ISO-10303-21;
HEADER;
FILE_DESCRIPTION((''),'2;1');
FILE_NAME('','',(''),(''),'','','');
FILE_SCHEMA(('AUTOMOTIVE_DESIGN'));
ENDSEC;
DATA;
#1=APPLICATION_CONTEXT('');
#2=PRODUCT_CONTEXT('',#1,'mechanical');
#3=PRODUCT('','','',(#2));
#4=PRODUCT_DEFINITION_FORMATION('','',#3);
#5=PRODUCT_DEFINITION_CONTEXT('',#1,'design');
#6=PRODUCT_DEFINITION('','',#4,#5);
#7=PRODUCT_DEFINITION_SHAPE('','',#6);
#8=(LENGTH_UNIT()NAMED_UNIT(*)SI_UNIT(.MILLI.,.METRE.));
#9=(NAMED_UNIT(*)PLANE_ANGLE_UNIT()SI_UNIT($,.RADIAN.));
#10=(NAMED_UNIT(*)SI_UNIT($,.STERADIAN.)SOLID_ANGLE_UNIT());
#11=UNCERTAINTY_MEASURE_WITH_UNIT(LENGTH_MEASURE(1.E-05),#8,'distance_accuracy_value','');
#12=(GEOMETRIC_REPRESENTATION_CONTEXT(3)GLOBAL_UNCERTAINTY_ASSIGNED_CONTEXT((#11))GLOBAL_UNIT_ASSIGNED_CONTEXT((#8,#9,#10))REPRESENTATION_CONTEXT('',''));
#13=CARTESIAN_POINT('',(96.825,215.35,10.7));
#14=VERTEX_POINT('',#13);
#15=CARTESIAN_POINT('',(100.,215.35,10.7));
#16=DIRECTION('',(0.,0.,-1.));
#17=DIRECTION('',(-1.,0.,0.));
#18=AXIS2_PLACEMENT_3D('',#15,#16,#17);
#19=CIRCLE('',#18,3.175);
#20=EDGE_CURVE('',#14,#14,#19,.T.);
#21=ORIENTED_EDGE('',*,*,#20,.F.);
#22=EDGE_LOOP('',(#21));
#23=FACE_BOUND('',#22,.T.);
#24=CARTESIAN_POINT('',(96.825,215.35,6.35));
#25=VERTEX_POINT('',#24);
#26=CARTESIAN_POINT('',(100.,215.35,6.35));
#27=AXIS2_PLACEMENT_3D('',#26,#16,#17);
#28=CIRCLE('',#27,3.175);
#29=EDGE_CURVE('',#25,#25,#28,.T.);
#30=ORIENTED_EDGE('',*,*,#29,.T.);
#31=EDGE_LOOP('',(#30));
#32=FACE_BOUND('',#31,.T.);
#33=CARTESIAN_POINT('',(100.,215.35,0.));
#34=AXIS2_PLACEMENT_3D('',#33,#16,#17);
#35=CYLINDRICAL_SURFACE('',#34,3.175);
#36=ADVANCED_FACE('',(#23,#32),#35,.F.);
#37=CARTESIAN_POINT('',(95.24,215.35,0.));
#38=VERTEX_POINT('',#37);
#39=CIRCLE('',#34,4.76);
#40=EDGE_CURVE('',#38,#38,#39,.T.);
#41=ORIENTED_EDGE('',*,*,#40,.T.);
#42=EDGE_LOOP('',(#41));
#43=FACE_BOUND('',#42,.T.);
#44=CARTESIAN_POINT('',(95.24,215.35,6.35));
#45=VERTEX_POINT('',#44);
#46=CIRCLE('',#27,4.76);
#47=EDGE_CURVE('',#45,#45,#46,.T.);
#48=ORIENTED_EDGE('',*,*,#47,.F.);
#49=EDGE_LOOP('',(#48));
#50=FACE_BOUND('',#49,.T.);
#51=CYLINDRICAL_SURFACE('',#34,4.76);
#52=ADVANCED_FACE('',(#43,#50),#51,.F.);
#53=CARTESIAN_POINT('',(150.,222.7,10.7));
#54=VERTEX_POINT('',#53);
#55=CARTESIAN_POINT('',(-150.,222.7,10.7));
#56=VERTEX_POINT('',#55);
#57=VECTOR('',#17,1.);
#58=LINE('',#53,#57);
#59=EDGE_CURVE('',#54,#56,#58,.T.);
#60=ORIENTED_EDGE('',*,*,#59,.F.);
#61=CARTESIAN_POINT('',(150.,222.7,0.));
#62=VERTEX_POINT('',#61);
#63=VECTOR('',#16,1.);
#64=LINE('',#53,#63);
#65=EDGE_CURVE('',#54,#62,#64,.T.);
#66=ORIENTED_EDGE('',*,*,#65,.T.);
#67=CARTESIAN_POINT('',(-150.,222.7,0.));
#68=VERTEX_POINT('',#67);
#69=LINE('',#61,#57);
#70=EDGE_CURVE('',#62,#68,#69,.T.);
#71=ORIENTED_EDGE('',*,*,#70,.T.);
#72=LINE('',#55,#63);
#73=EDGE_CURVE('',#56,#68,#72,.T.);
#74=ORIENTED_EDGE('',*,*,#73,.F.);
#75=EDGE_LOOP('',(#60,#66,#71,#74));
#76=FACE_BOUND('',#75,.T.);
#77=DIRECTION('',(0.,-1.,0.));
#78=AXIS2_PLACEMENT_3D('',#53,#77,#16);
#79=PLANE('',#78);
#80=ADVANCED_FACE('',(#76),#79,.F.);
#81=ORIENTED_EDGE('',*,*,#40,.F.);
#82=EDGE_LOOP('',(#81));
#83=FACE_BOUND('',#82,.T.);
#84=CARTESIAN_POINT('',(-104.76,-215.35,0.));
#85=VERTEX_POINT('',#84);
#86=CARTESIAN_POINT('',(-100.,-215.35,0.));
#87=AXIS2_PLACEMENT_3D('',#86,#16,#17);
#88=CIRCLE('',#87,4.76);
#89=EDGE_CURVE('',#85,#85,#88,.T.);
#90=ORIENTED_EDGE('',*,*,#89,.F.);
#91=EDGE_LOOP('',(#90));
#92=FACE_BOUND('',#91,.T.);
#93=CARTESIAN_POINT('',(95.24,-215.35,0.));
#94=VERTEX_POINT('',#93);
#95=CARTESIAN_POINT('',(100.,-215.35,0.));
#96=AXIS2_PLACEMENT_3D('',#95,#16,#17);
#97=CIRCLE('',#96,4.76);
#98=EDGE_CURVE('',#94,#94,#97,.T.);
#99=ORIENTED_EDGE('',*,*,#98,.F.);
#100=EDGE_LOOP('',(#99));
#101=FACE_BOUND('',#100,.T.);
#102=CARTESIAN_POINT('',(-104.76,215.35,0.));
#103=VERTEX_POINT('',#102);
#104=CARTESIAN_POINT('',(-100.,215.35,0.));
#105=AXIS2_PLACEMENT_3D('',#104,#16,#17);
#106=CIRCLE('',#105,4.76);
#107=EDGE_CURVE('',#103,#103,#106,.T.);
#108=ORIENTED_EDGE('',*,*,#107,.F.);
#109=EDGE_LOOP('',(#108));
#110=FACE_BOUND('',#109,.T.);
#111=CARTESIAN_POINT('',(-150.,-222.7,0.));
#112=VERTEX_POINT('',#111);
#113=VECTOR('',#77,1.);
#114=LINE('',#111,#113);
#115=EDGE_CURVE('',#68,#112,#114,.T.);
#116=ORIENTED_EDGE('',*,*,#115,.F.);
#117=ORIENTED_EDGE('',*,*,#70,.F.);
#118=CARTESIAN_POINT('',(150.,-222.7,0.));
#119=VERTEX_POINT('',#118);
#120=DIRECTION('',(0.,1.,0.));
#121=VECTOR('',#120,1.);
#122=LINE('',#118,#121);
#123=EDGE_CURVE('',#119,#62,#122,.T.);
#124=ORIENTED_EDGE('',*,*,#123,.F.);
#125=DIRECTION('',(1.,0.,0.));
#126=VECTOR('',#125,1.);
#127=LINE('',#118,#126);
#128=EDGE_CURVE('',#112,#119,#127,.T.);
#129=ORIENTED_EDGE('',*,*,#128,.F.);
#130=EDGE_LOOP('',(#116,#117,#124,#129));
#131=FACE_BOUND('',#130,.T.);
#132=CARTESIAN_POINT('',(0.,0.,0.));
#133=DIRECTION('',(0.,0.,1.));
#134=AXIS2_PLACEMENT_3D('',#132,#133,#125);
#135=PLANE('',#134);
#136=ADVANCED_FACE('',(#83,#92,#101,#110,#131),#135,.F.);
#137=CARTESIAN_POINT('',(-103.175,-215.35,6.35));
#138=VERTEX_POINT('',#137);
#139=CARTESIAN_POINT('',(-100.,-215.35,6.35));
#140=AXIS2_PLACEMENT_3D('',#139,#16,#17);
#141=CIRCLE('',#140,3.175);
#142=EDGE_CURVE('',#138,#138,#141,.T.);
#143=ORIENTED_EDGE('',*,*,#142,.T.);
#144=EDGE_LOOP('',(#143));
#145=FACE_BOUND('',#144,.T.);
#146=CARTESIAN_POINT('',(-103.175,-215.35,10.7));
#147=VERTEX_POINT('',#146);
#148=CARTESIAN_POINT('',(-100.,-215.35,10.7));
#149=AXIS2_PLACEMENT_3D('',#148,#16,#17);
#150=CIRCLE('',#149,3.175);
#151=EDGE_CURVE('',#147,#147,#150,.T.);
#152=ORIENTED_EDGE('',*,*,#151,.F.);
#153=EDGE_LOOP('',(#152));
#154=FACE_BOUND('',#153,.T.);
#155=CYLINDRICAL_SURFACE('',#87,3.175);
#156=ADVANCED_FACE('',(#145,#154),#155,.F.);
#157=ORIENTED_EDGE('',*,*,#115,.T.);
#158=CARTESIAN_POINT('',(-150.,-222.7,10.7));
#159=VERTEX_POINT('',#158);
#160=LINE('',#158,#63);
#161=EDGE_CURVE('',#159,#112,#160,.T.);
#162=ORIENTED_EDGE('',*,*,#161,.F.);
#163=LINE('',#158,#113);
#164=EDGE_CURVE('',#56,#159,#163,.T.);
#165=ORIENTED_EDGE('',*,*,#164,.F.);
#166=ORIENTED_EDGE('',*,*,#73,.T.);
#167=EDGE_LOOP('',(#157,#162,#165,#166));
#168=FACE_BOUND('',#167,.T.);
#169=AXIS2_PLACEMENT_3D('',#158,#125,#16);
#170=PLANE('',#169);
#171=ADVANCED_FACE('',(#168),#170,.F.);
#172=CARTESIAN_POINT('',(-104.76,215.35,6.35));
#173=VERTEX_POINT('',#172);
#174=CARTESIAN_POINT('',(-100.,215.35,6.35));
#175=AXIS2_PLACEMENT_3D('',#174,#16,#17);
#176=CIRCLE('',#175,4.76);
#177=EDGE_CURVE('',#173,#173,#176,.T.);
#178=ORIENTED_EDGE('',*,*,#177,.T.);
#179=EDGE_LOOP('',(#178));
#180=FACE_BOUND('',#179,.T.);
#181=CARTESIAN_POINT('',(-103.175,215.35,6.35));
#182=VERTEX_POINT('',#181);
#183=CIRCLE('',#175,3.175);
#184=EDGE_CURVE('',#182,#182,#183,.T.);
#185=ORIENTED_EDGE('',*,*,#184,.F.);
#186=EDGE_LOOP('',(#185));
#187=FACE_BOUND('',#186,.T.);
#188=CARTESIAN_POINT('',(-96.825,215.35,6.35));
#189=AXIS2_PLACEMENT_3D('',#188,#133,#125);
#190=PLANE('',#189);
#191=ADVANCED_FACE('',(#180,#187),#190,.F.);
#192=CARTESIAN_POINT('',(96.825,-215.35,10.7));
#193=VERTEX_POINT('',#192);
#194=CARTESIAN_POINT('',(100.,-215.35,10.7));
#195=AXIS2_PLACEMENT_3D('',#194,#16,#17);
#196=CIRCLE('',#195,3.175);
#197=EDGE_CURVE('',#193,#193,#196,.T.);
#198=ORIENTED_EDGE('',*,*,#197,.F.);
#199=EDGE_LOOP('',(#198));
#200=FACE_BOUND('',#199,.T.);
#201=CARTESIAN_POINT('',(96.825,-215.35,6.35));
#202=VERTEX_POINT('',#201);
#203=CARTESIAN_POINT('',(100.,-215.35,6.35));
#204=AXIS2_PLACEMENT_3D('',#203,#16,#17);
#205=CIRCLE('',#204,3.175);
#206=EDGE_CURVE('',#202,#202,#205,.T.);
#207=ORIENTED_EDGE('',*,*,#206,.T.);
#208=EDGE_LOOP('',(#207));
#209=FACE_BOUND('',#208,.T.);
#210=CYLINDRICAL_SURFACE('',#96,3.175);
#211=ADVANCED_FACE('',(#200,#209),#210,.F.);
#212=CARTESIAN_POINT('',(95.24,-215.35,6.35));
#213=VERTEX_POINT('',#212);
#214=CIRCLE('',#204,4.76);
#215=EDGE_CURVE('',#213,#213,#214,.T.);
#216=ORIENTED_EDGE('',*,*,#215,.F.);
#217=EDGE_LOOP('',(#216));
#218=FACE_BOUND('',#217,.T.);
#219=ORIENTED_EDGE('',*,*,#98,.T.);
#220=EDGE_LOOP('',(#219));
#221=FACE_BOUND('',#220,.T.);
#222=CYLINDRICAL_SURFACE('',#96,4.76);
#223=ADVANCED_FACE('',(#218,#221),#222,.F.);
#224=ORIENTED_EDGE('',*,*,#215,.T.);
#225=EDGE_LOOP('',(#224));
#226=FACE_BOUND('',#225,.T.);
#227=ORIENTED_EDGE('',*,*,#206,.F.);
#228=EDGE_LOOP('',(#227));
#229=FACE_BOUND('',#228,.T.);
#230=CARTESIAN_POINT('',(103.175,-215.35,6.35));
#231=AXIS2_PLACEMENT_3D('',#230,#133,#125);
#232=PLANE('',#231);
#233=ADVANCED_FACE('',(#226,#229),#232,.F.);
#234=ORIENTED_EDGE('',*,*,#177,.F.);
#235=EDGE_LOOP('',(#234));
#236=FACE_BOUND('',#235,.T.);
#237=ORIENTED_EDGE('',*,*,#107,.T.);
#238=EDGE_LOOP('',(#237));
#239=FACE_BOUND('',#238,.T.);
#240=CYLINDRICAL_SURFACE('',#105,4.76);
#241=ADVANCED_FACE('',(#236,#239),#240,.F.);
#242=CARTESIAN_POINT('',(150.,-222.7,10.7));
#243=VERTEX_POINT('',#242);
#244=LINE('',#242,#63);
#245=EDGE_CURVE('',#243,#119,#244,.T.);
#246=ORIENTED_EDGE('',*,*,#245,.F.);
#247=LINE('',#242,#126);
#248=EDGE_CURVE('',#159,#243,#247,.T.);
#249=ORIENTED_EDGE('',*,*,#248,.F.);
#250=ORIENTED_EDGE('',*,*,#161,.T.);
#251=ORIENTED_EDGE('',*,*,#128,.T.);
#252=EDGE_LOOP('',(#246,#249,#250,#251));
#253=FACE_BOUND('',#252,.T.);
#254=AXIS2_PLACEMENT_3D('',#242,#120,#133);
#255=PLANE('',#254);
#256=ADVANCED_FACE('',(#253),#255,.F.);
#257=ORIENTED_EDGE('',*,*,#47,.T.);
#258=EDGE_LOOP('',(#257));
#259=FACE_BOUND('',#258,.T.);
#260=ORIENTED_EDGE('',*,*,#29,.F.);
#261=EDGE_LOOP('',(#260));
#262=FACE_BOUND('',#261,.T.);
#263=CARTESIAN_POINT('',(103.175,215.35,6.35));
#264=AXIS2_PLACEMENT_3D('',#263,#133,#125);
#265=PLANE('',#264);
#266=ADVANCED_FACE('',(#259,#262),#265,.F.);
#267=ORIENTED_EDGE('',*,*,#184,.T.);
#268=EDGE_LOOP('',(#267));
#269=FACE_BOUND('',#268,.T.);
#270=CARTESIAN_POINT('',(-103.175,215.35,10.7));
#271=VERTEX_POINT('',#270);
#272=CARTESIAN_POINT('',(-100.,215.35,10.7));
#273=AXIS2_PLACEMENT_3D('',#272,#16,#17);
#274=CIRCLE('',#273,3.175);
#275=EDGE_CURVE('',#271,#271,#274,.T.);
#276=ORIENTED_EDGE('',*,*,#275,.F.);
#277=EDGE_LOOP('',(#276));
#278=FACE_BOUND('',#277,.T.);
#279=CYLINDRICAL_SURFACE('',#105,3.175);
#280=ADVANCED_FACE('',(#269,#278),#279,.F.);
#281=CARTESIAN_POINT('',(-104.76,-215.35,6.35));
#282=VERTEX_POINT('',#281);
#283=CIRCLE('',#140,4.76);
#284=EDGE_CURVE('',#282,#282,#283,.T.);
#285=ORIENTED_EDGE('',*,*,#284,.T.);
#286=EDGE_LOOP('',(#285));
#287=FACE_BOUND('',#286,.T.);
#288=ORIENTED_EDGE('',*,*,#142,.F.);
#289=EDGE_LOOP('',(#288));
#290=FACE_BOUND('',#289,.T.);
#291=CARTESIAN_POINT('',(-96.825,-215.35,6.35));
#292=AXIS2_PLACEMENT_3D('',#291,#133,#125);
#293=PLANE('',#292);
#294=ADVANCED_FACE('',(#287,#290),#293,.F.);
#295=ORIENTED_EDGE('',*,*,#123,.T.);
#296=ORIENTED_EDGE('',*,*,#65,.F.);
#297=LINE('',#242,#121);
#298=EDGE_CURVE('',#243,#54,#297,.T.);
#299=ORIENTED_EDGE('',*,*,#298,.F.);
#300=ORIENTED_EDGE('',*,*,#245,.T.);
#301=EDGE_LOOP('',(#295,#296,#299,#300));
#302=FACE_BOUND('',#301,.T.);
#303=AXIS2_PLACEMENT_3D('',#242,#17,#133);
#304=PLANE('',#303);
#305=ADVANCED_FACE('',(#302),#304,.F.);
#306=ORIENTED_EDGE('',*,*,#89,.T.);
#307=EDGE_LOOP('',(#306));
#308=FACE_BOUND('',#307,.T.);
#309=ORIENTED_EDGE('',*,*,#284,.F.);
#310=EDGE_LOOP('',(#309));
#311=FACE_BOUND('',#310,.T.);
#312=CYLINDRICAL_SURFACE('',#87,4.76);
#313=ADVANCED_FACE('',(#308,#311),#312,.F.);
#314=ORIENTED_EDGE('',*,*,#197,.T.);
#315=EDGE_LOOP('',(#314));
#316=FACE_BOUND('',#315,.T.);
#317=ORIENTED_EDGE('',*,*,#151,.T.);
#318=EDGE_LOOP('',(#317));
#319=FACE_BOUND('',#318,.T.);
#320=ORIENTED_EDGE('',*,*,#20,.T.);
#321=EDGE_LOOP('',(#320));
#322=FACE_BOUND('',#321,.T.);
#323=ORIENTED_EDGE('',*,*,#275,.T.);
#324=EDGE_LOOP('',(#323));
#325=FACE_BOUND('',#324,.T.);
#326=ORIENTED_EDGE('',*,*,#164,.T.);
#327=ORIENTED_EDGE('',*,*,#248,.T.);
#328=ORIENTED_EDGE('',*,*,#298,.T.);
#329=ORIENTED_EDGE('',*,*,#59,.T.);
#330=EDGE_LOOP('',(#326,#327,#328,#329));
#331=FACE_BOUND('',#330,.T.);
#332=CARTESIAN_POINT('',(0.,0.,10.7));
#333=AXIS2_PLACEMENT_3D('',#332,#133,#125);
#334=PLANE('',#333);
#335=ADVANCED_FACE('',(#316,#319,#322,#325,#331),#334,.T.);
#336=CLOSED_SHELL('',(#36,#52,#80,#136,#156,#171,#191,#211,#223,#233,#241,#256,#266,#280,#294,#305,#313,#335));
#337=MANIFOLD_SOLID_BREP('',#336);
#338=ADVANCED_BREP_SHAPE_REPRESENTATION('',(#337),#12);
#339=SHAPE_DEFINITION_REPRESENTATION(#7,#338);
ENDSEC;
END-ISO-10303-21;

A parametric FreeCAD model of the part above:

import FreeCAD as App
import Part
import Sketcher

V = App.Vector

doc = App.newDocument("Part")
body = doc.addObject("PartDesign::Body", "Body")

sketch1 = body.newObject("Sketcher::SketchObject", "Sketch")
sketch1.AttachmentSupport = (doc.getObject("XY_Plane"), [""])
sketch1.MapMode = "FlatFace"
sketch1.addGeometry([
    Part.LineSegment(V(-150, 223, 0), V(-150, -223, 0)),
    Part.LineSegment(V(-150, -223, 0), V(150, -223, 0)),
    Part.LineSegment(V(150, -223, 0), V(150, 223, 0)),
    Part.LineSegment(V(150, 223, 0), V(-150, 223, 0)),
], False)
sketch1.addConstraint([
    Sketcher.Constraint("Coincident", 0, 2, 1, 1),
    Sketcher.Constraint("Coincident", 1, 2, 2, 1),
    Sketcher.Constraint("Coincident", 2, 2, 3, 1),
    Sketcher.Constraint("Coincident", 3, 2, 0, 1),
    Sketcher.Constraint("Vertical", 0),
    Sketcher.Constraint("Horizontal", 1),
    Sketcher.Constraint("Vertical", 2),
    Sketcher.Constraint("Horizontal", 3),
    Sketcher.Constraint("Symmetric", 0, 2, 2, 2, -1, 1),
    Sketcher.Constraint("DistanceX", 1, 1, 1, 2, 300.0),
    Sketcher.Constraint("DistanceY", 0, 2, 0, 1, 445.4),
])
pad1 = body.newObject("PartDesign::Pad", "Pad")
pad1.Profile = sketch1
pad1.Length = 10.7

sketch2 = body.newObject("Sketcher::SketchObject", "Sketch001")
sketch2.AttachmentSupport = (doc.getObject("XY_Plane"), [""])
sketch2.MapMode = "FlatFace"
sketch2.addGeometry([
    Part.Circle(V(100, 215.3, 0), V(0, 0, 1), 3.2),
    Part.Circle(V(100, -215.3, 0), V(0, 0, 1), 3.2),
    Part.Circle(V(-100, -215.3, 0), V(0, 0, 1), 3.2),
    Part.Circle(V(-100, 215.3, 0), V(0, 0, 1), 3.2),
], False)
sketch2.addConstraint([
    Sketcher.Constraint("Equal", 0, 1),
    Sketcher.Constraint("Equal", 1, 2),
    Sketcher.Constraint("Equal", 2, 3),
    Sketcher.Constraint("Symmetric", 0, 3, 2, 3, -1, 1),
    Sketcher.Constraint("Symmetric", 1, 3, 3, 3, -1, 1),
    Sketcher.Constraint("Symmetric", 1, 3, 2, 3, -2),
    Sketcher.Constraint("Diameter", 0, 6.35),
    Sketcher.Constraint("DistanceX", -1, 1, 0, 3, 100.0),
    Sketcher.Constraint("DistanceY", 1, 3, 0, 3, 430.7),
])
doc.recompute()
hole = body.newObject("PartDesign::Hole", "Hole")
hole.Profile = sketch2
hole.ThreadType = "None"
hole.Diameter = 6.35
hole.DepthType = "ThroughAll"
hole.HoleCutType = "Counterbore"
hole.HoleCutDiameter = 9.52
hole.HoleCutDepth = 6.35
hole.Reversed = True

doc.recompute()
